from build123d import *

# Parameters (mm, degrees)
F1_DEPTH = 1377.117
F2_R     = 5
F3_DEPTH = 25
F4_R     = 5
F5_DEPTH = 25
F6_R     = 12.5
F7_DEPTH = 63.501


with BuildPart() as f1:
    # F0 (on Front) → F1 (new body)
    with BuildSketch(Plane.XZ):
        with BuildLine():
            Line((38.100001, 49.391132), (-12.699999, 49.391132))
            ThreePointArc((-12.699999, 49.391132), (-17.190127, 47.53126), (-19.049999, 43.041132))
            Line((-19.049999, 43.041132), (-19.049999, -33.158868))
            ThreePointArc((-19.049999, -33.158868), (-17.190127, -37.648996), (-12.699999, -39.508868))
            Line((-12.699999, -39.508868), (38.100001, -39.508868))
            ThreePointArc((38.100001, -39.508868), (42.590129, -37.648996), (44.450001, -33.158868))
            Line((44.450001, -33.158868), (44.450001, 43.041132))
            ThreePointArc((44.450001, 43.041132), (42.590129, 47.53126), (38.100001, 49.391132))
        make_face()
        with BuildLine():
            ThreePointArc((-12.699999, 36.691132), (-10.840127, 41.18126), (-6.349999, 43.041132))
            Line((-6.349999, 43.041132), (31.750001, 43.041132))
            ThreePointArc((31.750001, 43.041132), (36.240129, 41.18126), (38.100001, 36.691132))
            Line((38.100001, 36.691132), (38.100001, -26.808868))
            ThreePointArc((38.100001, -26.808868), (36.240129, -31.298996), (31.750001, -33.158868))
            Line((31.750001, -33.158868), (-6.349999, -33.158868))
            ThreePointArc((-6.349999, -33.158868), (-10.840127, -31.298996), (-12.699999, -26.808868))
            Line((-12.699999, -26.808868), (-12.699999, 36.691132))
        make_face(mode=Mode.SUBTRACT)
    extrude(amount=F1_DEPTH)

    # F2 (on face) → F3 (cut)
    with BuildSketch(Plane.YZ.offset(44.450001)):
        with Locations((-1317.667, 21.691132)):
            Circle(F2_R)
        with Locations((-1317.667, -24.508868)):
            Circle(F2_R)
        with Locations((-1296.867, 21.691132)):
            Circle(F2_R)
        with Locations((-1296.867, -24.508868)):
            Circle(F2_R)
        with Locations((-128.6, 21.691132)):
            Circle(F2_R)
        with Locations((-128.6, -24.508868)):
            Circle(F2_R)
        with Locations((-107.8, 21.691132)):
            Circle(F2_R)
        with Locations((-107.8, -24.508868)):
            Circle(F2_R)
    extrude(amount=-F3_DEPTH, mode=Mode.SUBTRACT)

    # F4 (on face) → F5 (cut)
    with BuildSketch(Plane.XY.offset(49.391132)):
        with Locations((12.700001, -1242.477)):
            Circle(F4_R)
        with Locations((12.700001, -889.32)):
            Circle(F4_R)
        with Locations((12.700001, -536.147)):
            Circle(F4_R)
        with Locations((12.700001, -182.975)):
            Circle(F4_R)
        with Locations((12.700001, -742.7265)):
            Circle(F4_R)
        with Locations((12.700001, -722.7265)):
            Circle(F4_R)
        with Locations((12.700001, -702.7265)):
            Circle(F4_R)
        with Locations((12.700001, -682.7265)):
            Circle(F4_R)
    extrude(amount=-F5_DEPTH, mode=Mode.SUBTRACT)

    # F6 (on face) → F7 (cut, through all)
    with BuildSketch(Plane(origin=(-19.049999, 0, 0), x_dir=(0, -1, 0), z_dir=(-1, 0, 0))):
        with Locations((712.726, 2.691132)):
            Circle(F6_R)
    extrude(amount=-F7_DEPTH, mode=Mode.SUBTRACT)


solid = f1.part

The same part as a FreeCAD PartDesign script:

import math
import FreeCAD as App
import Part
import Sketcher

V = App.Vector
Q = App.Units.Quantity

doc = App.newDocument("Part")
params = doc.addObject("Spreadsheet::Sheet", "Params")
for row, (alias, value) in enumerate([
    ("sketch1_width", "2 in"),
    ("sketch1_height", "3 in"),
    ("sketch1_radius", "0.25 in"),
    ("pad1_length", "1377.117 mm"),
    ("pocket1_length", "25 mm"),
    ("pocket2_length", "25 mm"),
], start=1):
    params.set(f"A{row}", alias)
    params.set(f"B{row}", "=" + value)
    params.setAlias(f"B{row}", alias)

body = doc.addObject("PartDesign::Body", "Body")

sketch1 = body.newObject("Sketcher::SketchObject", "Sketch")
sketch1.AttachmentSupport = (doc.getObject("XZ_Plane"), [""])
sketch1.MapMode = "FlatFace"
sketch1.addGeometry(Part.LineSegment(V(38, 49, 0), V(-13, 49, 0)), False)
sketch1.addGeometry(Part.ArcOfCircle(Part.Circle(V(-13, 43, 0), V(0, 0, 1), 6), math.radians(90), math.radians(180)), False)
sketch1.addGeometry(Part.LineSegment(V(-19, 43, 0), V(-19, -33, 0)), False)
sketch1.addGeometry(Part.ArcOfCircle(Part.Circle(V(-13, -33, 0), V(0, 0, 1), 6), math.radians(-180), math.radians(-90)), False)
sketch1.addGeometry(Part.LineSegment(V(-13, -40, 0), V(38, -40, 0)), False)
sketch1.addGeometry(Part.ArcOfCircle(Part.Circle(V(38, -33, 0), V(0, 0, 1), 6), math.radians(-90), math.radians(0)), False)
sketch1.addGeometry(Part.LineSegment(V(44, -33, 0), V(44, 43, 0)), False)
sketch1.addGeometry(Part.ArcOfCircle(Part.Circle(V(38, 43, 0), V(0, 0, 1), 6), math.radians(0), math.radians(90)), False)
sketch1.addGeometry(Part.LineSegment(V(-13, -27, 0), V(-13, 37, 0)), False)
sketch1.addGeometry(Part.ArcOfCircle(Part.Circle(V(-6, 37, 0), V(0, 0, 1), 6), math.radians(90), math.radians(180)), False)
sketch1.addGeometry(Part.LineSegment(V(-6, 43, 0), V(32, 43, 0)), False)
sketch1.addGeometry(Part.ArcOfCircle(Part.Circle(V(32, 37, 0), V(0, 0, 1), 6), math.radians(0), math.radians(90)), False)
sketch1.addGeometry(Part.LineSegment(V(38, 37, 0), V(38, -27, 0)), False)
sketch1.addGeometry(Part.ArcOfCircle(Part.Circle(V(32, -27, 0), V(0, 0, 1), 6), math.radians(-90), math.radians(0)), False)
sketch1.addGeometry(Part.LineSegment(V(32, -33, 0), V(-6, -33, 0)), False)
sketch1.addGeometry(Part.ArcOfCircle(Part.Circle(V(-6, -27, 0), V(0, 0, 1), 6), math.radians(-180), math.radians(-90)), False)
sketch1.addConstraint(Sketcher.Constraint("Tangent", 0, 2, 1, 1))
sketch1.addConstraint(Sketcher.Constraint("Tangent", 1, 2, 2, 1))
sketch1.addConstraint(Sketcher.Constraint("Tangent", 2, 2, 3, 1))
sketch1.addConstraint(Sketcher.Constraint("Tangent", 3, 2, 4, 1))
sketch1.addConstraint(Sketcher.Constraint("Tangent", 4, 2, 5, 1))
sketch1.addConstraint(Sketcher.Constraint("Tangent", 5, 2, 6, 1))
sketch1.addConstraint(Sketcher.Constraint("Tangent", 6, 2, 7, 1))
sketch1.addConstraint(Sketcher.Constraint("Tangent", 7, 2, 0, 1))
sketch1.addConstraint(Sketcher.Constraint("Tangent", 8, 2, 9, 2))
sketch1.addConstraint(Sketcher.Constraint("Tangent", 9, 1, 10, 1))
sketch1.addConstraint(Sketcher.Constraint("Tangent", 10, 2, 11, 2))
sketch1.addConstraint(Sketcher.Constraint("Tangent", 11, 1, 12, 1))
sketch1.addConstraint(Sketcher.Constraint("Tangent", 12, 2, 13, 2))
sketch1.addConstraint(Sketcher.Constraint("Tangent", 13, 1, 14, 1))
sketch1.addConstraint(Sketcher.Constraint("Tangent", 14, 2, 15, 2))
sketch1.addConstraint(Sketcher.Constraint("Tangent", 15, 1, 8, 1))
sketch1.addConstraint(Sketcher.Constraint("Horizontal", 0))
sketch1.addConstraint(Sketcher.Constraint("Vertical", 2))
sketch1.addConstraint(Sketcher.Constraint("Horizontal", 4))
sketch1.addConstraint(Sketcher.Constraint("Vertical", 6))
sketch1.addConstraint(Sketcher.Constraint("Vertical", 8))
sketch1.addConstraint(Sketcher.Constraint("Horizontal", 10))
sketch1.addConstraint(Sketcher.Constraint("Vertical", 12))
sketch1.addConstraint(Sketcher.Constraint("Horizontal", 14))
sketch1.addConstraint(Sketcher.Constraint("Equal", 1, 3))
sketch1.addConstraint(Sketcher.Constraint("Equal", 3, 5))
sketch1.addConstraint(Sketcher.Constraint("Equal", 5, 7))
sketch1.addConstraint(Sketcher.Constraint("Equal", 7, 9))
sketch1.addConstraint(Sketcher.Constraint("Equal", 9, 11))
sketch1.addConstraint(Sketcher.Constraint("Equal", 11, 13))
sketch1.addConstraint(Sketcher.Constraint("Equal", 13, 15))
sketch1.addConstraint(Sketcher.Constraint("Horizontal", 6, 2, 9, 1))
sketch1.addConstraint(Sketcher.Constraint("Horizontal", 5, 2, 13, 1))
sketch1.addConstraint(Sketcher.Constraint("Vertical", 3, 2, 8, 2))
sketch1.addConstraint(Sketcher.Constraint("Vertical", 7, 2, 11, 1))
sketch1.addConstraint(Sketcher.Constraint("DistanceX", 0, 2, 0, 1, Q("2 in")))
sketch1.addConstraint(Sketcher.Constraint("DistanceY", 2, 2, 2, 1, Q("3 in")))
sketch1.addConstraint(Sketcher.Constraint("Radius", 1, Q("0.25 in")))
sketch1.addConstraint(Sketcher.Constraint("DistanceX", 1, 3, -1, 1, Q("0.5 in")))
sketch1.addConstraint(Sketcher.Constraint("DistanceY", -1, 1, 1, 3, Q("43.041132 mm")))
sketch1.setExpression("Constraints[35]", "Params.sketch1_width")
sketch1.setExpression("Constraints[36]", "Params.sketch1_height")
sketch1.setExpression("Constraints[37]", "Params.sketch1_radius")
pad1 = body.newObject("PartDesign::Pad", "Pad")
pad1.Profile = sketch1
pad1.setExpression("Length", "Params.pad1_length")

sketch2 = body.newObject("Sketcher::SketchObject", "Sketch001")
sketch2.AttachmentSupport = (doc.getObject("YZ_Plane"), [""])
sketch2.MapMode = "FlatFace"
sketch2.AttachmentOffset = App.Placement(V(0, 0, 1.75 * 25.4), App.Rotation())
sketch2.addGeometry(Part.Circle(V(-1318, 22, 0), V(0, 0, 1), 5), False)
sketch2.addGeometry(Part.Circle(V(-1318, -25, 0), V(0, 0, 1), 5), False)
sketch2.addGeometry(Part.Circle(V(-1297, 22, 0), V(0, 0, 1), 5), False)
sketch2.addGeometry(Part.Circle(V(-1297, -25, 0), V(0, 0, 1), 5), False)
sketch2.addGeometry(Part.Circle(V(-129, 22, 0), V(0, 0, 1), 5), False)
sketch2.addGeometry(Part.Circle(V(-129, -25, 0), V(0, 0, 1), 5), False)
sketch2.addGeometry(Part.Circle(V(-108, 22, 0), V(0, 0, 1), 5), False)
sketch2.addGeometry(Part.Circle(V(-108, -25, 0), V(0, 0, 1), 5), False)
sketch2.addConstraint(Sketcher.Constraint("Equal", 0, 1))
sketch2.addConstraint(Sketcher.Constraint("Equal", 1, 2))
sketch2.addConstraint(Sketcher.Constraint("Equal", 2, 3))
sketch2.addConstraint(Sketcher.Constraint("Equal", 3, 4))
sketch2.addConstraint(Sketcher.Constraint("Equal", 4, 5))
sketch2.addConstraint(Sketcher.Constraint("Equal", 5, 6))
sketch2.addConstraint(Sketcher.Constraint("Equal", 6, 7))
sketch2.addConstraint(Sketcher.Constraint("Horizontal", 0, 3, 2, 3))
sketch2.addConstraint(Sketcher.Constraint("Horizontal", 1, 3, 3, 3))
sketch2.addConstraint(Sketcher.Constraint("Horizontal", 2, 3, 4, 3))
sketch2.addConstraint(Sketcher.Constraint("Horizontal", 3, 3, 5, 3))
sketch2.addConstraint(Sketcher.Constraint("Horizontal", 4, 3, 6, 3))
sketch2.addConstraint(Sketcher.Constraint("Horizontal", 5, 3, 7, 3))
sketch2.addConstraint(Sketcher.Constraint("Vertical", 0, 3, 1, 3))
sketch2.addConstraint(Sketcher.Constraint("Vertical", 2, 3, 3, 3))
sketch2.addConstraint(Sketcher.Constraint("Vertical", 4, 3, 5, 3))
sketch2.addConstraint(Sketcher.Constraint("Vertical", 6, 3, 7, 3))
sketch2.addConstraint(Sketcher.Constraint("Diameter", 0, Q("10 mm")))
sketch2.addConstraint(Sketcher.Constraint("DistanceX", 0, 3, -1, 1, Q("1317.667 mm")))
sketch2.addConstraint(Sketcher.Constraint("DistanceX", 2, 3, -1, 1, Q("1296.867 mm")))
sketch2.addConstraint(Sketcher.Constraint("DistanceX", 4, 3, -1, 1, Q("128.6 mm")))
sketch2.addConstraint(Sketcher.Constraint("DistanceX", 6, 3, -1, 1, Q("107.8 mm")))
sketch2.addConstraint(Sketcher.Constraint("DistanceY", 1, 3, 0, 3, Q("46.2 mm")))
sketch2.addConstraint(Sketcher.Constraint("DistanceY", -1, 1, 0, 3, Q("21.691132 mm")))
pocket1 = body.newObject("PartDesign::Pocket", "Pocket")
pocket1.Profile = sketch2
pocket1.setExpression("Length", "Params.pocket1_length")

sketch3 = body.newObject("Sketcher::SketchObject", "Sketch002")
sketch3.AttachmentSupport = (doc.getObject("XY_Plane"), [""])
sketch3.MapMode = "FlatFace"
sketch3.AttachmentOffset = App.Placement(V(0, 0, 49.391132), App.Rotation())
sketch3.addGeometry(Part.Circle(V(13, -1242, 0), V(0, 0, 1), 5), False)
sketch3.addGeometry(Part.Circle(V(13, -889, 0), V(0, 0, 1), 5), False)
sketch3.addGeometry(Part.Circle(V(13, -536, 0), V(0, 0, 1), 5), False)
sketch3.addGeometry(Part.Circle(V(13, -183, 0), V(0, 0, 1), 5), False)
sketch3.addGeometry(Part.Circle(V(13, -743, 0), V(0, 0, 1), 5), False)
sketch3.addGeometry(Part.Circle(V(13, -723, 0), V(0, 0, 1), 5), False)
sketch3.addGeometry(Part.Circle(V(13, -703, 0), V(0, 0, 1), 5), False)
sketch3.addGeometry(Part.Circle(V(13, -683, 0), V(0, 0, 1), 5), False)
sketch3.addConstraint(Sketcher.Constraint("Equal", 0, 1))
sketch3.addConstraint(Sketcher.Constraint("Equal", 1, 2))
sketch3.addConstraint(Sketcher.Constraint("Equal", 2, 3))
sketch3.addConstraint(Sketcher.Constraint("Equal", 3, 4))
sketch3.addConstraint(Sketcher.Constraint("Equal", 4, 5))
sketch3.addConstraint(Sketcher.Constraint("Equal", 5, 6))
sketch3.addConstraint(Sketcher.Constraint("Equal", 6, 7))
sketch3.addConstraint(Sketcher.Constraint("Vertical", 0, 3, 1, 3))
sketch3.addConstraint(Sketcher.Constraint("Vertical", 1, 3, 2, 3))
sketch3.addConstraint(Sketcher.Constraint("Vertical", 2, 3, 3, 3))
sketch3.addConstraint(Sketcher.Constraint("Vertical", 3, 3, 4, 3))
sketch3.addConstraint(Sketcher.Constraint("Vertical", 4, 3, 5, 3))
sketch3.addConstraint(Sketcher.Constraint("Vertical", 5, 3, 6, 3))
sketch3.addConstraint(Sketcher.Constraint("Vertical", 6, 3, 7, 3))
sketch3.addConstraint(Sketcher.Constraint("DistanceX", -1, 1, 0, 3, Q("0.5 in")))
sketch3.addConstraint(Sketcher.Constraint("Diameter", 0, Q("10 mm")))
sketch3.addConstraint(Sketcher.Constraint("DistanceY", 0, 3, -1, 1, Q("1242.477 mm")))
sketch3.addConstraint(Sketcher.Constraint("DistanceY", 1, 3, -1, 1, Q("889.32 mm")))
sketch3.addConstraint(Sketcher.Constraint("DistanceY", 2, 3, -1, 1, Q("536.147 mm")))
sketch3.addConstraint(Sketcher.Constraint("DistanceY", 3, 3, -1, 1, Q("182.975 mm")))
sketch3.addConstraint(Sketcher.Constraint("DistanceY", 4, 3, -1, 1, Q("742.7265 mm")))
sketch3.addConstraint(Sketcher.Constraint("DistanceY", 5, 3, -1, 1, Q("722.7265 mm")))
sketch3.addConstraint(Sketcher.Constraint("DistanceY", 6, 3, -1, 1, Q("702.7265 mm")))
sketch3.addConstraint(Sketcher.Constraint("DistanceY", 7, 3, -1, 1, Q("682.7265 mm")))
pocket2 = body.newObject("PartDesign::Pocket", "Pocket001")
pocket2.Profile = sketch3
pocket2.setExpression("Length", "Params.pocket2_length")

sketch4 = body.newObject("Sketcher::SketchObject", "Sketch003")
sketch4.AttachmentSupport = (doc.getObject("YZ_Plane"), [""])
sketch4.MapMode = "FlatFace"
sketch4.AttachmentOffset = App.Placement(V(0, 0, -0.75 * 25.4), App.Rotation())
sketch4.addGeometry(Part.Circle(V(-713, 3, 0), V(0, 0, 1), 12), False)
sketch4.addConstraint(Sketcher.Constraint("Diameter", 0, Q("25 mm")))
sketch4.addConstraint(Sketcher.Constraint("DistanceX", 0, 3, -1, 1, Q("712.726 mm")))
sketch4.addConstraint(Sketcher.Constraint("DistanceY", -1, 1, 0, 3, Q("2.691132 mm")))
pocket3 = body.newObject("PartDesign::Pocket", "Pocket002")
pocket3.Profile = sketch4
pocket3.Type = "ThroughAll"
pocket3.Reversed = True

doc.recompute()
